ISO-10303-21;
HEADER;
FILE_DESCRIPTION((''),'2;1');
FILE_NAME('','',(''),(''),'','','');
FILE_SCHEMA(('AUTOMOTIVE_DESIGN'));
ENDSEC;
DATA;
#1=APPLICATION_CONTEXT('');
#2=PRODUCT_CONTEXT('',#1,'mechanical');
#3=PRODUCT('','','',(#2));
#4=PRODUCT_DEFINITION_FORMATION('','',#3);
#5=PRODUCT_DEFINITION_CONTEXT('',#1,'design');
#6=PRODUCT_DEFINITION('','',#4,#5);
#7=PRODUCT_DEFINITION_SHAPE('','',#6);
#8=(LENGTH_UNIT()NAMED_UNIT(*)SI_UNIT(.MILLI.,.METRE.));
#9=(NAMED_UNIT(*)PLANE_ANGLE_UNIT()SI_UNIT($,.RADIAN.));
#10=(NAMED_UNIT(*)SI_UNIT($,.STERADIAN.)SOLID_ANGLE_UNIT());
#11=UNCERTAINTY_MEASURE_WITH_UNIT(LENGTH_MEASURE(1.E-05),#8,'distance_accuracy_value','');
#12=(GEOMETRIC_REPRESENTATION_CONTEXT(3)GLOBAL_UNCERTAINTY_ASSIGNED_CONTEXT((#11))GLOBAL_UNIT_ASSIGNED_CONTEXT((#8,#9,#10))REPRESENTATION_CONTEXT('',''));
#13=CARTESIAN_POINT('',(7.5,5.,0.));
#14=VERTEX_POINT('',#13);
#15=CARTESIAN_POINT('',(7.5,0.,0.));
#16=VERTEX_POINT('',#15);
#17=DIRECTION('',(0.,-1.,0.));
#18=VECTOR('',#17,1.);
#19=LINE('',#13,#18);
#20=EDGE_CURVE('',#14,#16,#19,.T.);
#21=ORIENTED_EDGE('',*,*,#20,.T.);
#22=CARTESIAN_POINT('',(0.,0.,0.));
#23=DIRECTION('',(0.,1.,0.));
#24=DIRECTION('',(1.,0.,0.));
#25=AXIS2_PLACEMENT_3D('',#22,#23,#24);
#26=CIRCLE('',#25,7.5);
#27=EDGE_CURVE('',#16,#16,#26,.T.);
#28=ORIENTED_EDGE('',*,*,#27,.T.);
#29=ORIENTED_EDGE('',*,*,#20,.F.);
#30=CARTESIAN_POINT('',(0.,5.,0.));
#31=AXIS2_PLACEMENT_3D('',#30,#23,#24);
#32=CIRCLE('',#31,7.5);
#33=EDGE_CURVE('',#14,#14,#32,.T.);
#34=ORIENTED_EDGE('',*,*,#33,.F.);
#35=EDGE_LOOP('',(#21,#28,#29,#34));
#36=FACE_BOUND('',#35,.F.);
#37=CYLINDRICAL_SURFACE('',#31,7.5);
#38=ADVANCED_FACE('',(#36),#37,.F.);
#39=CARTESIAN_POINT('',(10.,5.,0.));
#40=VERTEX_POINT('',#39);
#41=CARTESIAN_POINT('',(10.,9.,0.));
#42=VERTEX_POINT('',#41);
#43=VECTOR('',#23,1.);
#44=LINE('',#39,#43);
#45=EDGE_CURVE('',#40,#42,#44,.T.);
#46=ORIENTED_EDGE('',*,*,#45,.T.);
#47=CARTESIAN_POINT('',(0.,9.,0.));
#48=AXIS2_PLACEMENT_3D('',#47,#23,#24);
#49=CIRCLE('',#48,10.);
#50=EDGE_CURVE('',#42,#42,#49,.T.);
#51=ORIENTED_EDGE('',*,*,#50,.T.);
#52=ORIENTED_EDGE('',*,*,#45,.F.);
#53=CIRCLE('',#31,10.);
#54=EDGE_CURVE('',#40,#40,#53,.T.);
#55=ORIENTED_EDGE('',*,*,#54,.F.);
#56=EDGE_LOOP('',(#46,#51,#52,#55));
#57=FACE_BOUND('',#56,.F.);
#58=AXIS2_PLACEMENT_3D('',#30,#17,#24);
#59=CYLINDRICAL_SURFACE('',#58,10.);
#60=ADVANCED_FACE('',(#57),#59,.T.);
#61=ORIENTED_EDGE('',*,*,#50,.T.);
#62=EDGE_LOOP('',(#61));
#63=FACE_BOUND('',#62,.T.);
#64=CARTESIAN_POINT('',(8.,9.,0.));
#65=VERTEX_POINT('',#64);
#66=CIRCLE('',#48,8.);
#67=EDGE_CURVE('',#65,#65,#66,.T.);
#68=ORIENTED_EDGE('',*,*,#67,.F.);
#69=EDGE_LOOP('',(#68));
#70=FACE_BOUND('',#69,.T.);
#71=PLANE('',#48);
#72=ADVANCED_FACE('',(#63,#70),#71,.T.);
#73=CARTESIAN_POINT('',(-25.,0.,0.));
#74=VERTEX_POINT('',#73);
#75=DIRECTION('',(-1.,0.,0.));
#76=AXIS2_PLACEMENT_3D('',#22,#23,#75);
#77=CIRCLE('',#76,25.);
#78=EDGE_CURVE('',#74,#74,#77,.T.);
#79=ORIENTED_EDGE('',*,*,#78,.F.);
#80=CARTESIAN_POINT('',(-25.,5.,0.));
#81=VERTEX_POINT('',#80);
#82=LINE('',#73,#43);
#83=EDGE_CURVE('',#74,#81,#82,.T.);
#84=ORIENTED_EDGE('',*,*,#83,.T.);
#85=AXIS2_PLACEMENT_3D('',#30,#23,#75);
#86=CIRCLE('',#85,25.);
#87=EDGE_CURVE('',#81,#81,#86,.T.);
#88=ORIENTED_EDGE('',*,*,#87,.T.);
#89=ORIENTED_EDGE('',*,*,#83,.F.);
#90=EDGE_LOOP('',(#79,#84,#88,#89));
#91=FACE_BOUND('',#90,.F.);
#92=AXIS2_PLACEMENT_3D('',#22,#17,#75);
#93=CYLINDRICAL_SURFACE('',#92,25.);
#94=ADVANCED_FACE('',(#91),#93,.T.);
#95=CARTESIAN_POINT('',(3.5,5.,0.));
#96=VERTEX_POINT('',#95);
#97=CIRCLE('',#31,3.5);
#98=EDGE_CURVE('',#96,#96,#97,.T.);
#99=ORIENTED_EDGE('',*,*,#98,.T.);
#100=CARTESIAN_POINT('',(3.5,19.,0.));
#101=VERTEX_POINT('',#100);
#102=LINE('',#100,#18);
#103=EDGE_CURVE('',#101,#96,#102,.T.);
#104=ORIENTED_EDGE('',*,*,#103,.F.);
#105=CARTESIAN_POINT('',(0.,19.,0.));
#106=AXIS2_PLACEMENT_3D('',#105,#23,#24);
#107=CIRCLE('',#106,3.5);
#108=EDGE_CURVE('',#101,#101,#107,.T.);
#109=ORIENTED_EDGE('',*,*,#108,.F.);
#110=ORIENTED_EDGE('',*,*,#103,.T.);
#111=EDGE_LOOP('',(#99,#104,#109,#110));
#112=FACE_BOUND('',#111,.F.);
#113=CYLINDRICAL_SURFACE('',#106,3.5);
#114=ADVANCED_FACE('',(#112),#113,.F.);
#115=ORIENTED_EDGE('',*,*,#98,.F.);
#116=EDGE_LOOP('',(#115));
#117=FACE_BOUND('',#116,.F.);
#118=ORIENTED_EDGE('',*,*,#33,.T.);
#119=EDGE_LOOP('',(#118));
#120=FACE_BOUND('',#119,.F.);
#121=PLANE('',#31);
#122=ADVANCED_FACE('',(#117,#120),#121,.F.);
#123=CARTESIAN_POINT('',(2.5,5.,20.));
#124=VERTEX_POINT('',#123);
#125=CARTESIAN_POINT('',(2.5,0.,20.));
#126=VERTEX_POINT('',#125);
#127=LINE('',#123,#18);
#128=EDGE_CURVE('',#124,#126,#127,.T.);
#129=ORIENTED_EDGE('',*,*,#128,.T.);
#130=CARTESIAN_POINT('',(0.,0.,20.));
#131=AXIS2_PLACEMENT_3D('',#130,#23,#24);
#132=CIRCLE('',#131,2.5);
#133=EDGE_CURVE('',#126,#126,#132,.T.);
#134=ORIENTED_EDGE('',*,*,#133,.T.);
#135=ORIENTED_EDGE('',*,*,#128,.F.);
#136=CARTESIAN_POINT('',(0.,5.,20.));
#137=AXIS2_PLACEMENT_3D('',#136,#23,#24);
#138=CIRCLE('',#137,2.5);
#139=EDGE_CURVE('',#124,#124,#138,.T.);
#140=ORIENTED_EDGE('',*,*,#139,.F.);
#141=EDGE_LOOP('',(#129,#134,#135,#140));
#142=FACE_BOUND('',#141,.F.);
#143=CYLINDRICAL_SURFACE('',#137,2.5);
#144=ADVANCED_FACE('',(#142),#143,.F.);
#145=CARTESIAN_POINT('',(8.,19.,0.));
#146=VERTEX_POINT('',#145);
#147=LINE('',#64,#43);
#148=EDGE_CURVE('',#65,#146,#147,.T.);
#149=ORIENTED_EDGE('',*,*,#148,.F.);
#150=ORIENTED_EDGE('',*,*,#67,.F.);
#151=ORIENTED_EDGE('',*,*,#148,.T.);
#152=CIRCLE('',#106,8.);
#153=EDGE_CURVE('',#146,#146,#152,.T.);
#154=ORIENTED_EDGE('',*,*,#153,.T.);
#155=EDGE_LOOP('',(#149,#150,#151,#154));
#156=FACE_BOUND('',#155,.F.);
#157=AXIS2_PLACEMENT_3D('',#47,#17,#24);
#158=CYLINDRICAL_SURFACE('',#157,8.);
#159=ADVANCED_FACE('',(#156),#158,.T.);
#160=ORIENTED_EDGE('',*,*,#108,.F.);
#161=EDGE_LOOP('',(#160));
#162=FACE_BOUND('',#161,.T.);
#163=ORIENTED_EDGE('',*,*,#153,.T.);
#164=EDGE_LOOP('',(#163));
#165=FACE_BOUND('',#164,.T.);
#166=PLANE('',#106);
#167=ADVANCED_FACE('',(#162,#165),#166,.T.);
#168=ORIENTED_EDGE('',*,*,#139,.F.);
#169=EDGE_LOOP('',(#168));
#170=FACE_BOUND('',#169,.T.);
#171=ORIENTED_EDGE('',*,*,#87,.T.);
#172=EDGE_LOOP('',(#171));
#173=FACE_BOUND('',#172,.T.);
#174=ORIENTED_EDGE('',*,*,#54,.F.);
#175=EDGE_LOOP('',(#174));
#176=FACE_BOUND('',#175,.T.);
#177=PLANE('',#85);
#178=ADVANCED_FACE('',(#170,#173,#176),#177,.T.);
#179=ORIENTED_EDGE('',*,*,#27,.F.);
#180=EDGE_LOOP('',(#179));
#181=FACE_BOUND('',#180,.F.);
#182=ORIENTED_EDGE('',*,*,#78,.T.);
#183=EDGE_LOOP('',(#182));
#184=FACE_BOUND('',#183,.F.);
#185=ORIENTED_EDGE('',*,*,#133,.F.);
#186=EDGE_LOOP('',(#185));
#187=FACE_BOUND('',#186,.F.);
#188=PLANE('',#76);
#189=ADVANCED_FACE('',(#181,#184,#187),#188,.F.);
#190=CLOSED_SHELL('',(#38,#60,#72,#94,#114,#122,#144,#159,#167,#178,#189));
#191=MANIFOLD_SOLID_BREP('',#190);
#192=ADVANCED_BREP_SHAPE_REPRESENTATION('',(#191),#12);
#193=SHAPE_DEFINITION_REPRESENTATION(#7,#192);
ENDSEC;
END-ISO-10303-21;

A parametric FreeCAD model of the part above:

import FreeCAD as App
import Part
import Sketcher

doc = App.newDocument("Part")
body = doc.addObject("PartDesign::Body", "Body")

# Sketch on XZ plane
sketch1 = body.newObject("Sketcher::SketchObject", "Sketch")
sketch1.AttachmentSupport = (doc.getObject("XZ_Plane"), [""])
sketch1.MapMode = "FlatFace"
sketch1.addGeometry(Part.Circle(App.Vector(0, 0, 0), App.Vector(0, 0, 1), 25), False)
sketch1.addConstraint([
    Sketcher.Constraint("Coincident", 0, 3, -1, 1),
    Sketcher.Constraint("Diameter", 0, 50.0),
])
pad1 = body.newObject("PartDesign::Pad", "Pad")
pad1.Profile = sketch1
pad1.Length = 5
pad1.Reversed = True

# Sketch on XZ plane
sketch2 = body.newObject("Sketcher::SketchObject", "Sketch001")
sketch2.AttachmentSupport = (doc.getObject("XZ_Plane"), [""])
sketch2.MapMode = "FlatFace"
sketch2.AttachmentOffset = App.Placement(App.Vector(0, 0, -5), App.Rotation())
sketch2.addGeometry(Part.Circle(App.Vector(0, 0, 0), App.Vector(0, 0, 1), 8), False)
sketch2.addConstraint([
    Sketcher.Constraint("Coincident", 0, 3, -1, 1),
    Sketcher.Constraint("Diameter", 0, 15.0),
])
pocket1 = body.newObject("PartDesign::Pocket", "Pocket")
pocket1.Profile = sketch2
pocket1.Type = "ThroughAll"
pocket1.Reversed = True

# Sketch on XZ plane
sketch3 = body.newObject("Sketcher::SketchObject", "Sketch002")
sketch3.AttachmentSupport = (doc.getObject("XZ_Plane"), [""])
sketch3.MapMode = "FlatFace"
sketch3.AttachmentOffset = App.Placement(App.Vector(0, 0, -5), App.Rotation())
sketch3.addGeometry(Part.Circle(App.Vector(0, 20, 0), App.Vector(0, 0, 1), 2.5), False)
sketch3.addConstraint([
    Sketcher.Constraint("PointOnObject", 0, 3, -2),
    Sketcher.Constraint("Diameter", 0, 5.0),
    Sketcher.Constraint("DistanceY", -1, 1, 0, 3, 20.0),
])
pocket2 = body.newObject("PartDesign::Pocket", "Pocket001")
pocket2.Profile = sketch3
pocket2.Type = "ThroughAll"
pocket2.Reversed = True

# Sketch on XZ plane
sketch4 = body.newObject("Sketcher::SketchObject", "Sketch003")
sketch4.AttachmentSupport = (doc.getObject("XZ_Plane"), [""])
sketch4.MapMode = "FlatFace"
sketch4.AttachmentOffset = App.Placement(App.Vector(0, 0, -5), App.Rotation())
sketch4.addGeometry(Part.Circle(App.Vector(0, 0, 0), App.Vector(0, 0, 1), 10), False)
sketch4.addConstraint([
    Sketcher.Constraint("Coincident", 0, 3, -1, 1),
    Sketcher.Constraint("Diameter", 0, 20.0),
])
pad2 = body.newObject("PartDesign::Pad", "Pad001")
pad2.Profile = sketch4
pad2.Length = 4
pad2.Reversed = True

# Sketch on XZ plane
sketch5 = body.newObject("Sketcher::SketchObject", "Sketch004")
sketch5.AttachmentSupport = (doc.getObject("XZ_Plane"), [""])
sketch5.MapMode = "FlatFace"
sketch5.AttachmentOffset = App.Placement(App.Vector(0, 0, -9), App.Rotation())
sketch5.addGeometry(Part.Circle(App.Vector(0, 0, 0), App.Vector(0, 0, 1), 8), False)
sketch5.addConstraint([
    Sketcher.Constraint("Coincident", 0, 3, -1, 1),
    Sketcher.Constraint("Diameter", 0, 16.0),
])
pad3 = body.newObject("PartDesign::Pad", "Pad002")
pad3.Profile = sketch5
pad3.Length = 10
pad3.Reversed = True

# Sketch on XZ plane
sketch6 = body.newObject("Sketcher::SketchObject", "Sketch005")
sketch6.AttachmentSupport = (doc.getObject("XZ_Plane"), [""])
sketch6.MapMode = "FlatFace"
sketch6.AttachmentOffset = App.Placement(App.Vector(0, 0, -19), App.Rotation())
sketch6.addGeometry(Part.Circle(App.Vector(0, 0, 0), App.Vector(0, 0, 1), 3.5), False)
sketch6.addConstraint([
    Sketcher.Constraint("Coincident", 0, 3, -1, 1),
    Sketcher.Constraint("Diameter", 0, 7.0),
])
pocket3 = body.newObject("PartDesign::Pocket", "Pocket002")
pocket3.Profile = sketch6
pocket3.Type = "ThroughAll"
pocket3.Reversed = True

doc.recompute()
